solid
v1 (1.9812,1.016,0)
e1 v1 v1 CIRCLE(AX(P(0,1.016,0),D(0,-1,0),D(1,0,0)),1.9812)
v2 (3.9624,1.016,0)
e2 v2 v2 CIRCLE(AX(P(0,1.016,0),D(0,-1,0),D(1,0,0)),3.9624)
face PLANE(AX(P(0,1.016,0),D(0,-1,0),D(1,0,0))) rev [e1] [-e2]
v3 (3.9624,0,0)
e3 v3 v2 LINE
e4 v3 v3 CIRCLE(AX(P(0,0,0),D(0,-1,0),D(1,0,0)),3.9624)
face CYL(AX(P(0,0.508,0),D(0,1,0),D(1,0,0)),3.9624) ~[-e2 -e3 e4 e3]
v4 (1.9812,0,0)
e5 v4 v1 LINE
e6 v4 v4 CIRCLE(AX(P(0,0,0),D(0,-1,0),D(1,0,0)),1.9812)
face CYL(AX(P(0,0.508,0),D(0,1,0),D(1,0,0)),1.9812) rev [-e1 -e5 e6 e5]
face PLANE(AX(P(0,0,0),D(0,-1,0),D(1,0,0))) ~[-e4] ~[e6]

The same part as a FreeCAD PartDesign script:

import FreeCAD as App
import Part
import Sketcher

V = App.Vector
Q = App.Units.Quantity


def add_polygon(sketch, points):
    """Adds a closed chain of lines whose ends are joined by coincident constraints."""
    first, n = sketch.GeometryCount, len(points)
    for a, b in zip(points, points[1:] + points[:1]):
        sketch.addGeometry(Part.LineSegment(App.Vector(*a, 0), App.Vector(*b, 0)), False)
    for i in range(n):
        sketch.addConstraint(Sketcher.Constraint("Coincident", first + i, 2, first + (i + 1) % n, 1))

doc = App.newDocument("Part")
params = doc.addObject("Spreadsheet::Sheet", "Params")
for row, (alias, value) in enumerate([
    ("sketch1_height", "0.04 in"),
    ("sketch1_width", "0.078 in"),
    ("revolution_angle", "360 deg"),
], start=1):
    params.set(f"A{row}", alias)
    params.set(f"B{row}", "=" + value)
    params.setAlias(f"B{row}", alias)

body = doc.addObject("PartDesign::Body", "Body")

# Sketch on XY plane
sketch1 = body.newObject("Sketcher::SketchObject", "Sketch")
sketch1.AttachmentSupport = (doc.getObject("XY_Plane"), [""])
sketch1.MapMode = "FlatFace"
add_polygon(sketch1, [(2, 1), (2, 0), (4, 0), (4, 1)])  # lines 0-3
sketch1.addConstraint([
    Sketcher.Constraint("Vertical", 0),
    Sketcher.Constraint("Horizontal", 1),
    Sketcher.Constraint("Vertical", 2),
    Sketcher.Constraint("Horizontal", 3),
    Sketcher.Constraint("PointOnObject", 0, 2, -1),
    Sketcher.Constraint("DistanceY", 0, 2, 0, 1, Q("0.04 in")),
    Sketcher.Constraint("DistanceX", 1, 1, 1, 2, Q("0.078 in")),
    Sketcher.Constraint("DistanceX", -1, 1, 0, 2, Q("0.078 in")),
])
sketch1.setExpression("Constraints[9]", "Params.sketch1_height")
sketch1.setExpression("Constraints[10]", "Params.sketch1_width")
revolution = body.newObject("PartDesign::Revolution", "Revolution")
revolution.Profile = sketch1
revolution.ReferenceAxis = (sketch1, ["V_Axis"])
revolution.setExpression("Angle", "Params.revolution_angle")

doc.recompute()
